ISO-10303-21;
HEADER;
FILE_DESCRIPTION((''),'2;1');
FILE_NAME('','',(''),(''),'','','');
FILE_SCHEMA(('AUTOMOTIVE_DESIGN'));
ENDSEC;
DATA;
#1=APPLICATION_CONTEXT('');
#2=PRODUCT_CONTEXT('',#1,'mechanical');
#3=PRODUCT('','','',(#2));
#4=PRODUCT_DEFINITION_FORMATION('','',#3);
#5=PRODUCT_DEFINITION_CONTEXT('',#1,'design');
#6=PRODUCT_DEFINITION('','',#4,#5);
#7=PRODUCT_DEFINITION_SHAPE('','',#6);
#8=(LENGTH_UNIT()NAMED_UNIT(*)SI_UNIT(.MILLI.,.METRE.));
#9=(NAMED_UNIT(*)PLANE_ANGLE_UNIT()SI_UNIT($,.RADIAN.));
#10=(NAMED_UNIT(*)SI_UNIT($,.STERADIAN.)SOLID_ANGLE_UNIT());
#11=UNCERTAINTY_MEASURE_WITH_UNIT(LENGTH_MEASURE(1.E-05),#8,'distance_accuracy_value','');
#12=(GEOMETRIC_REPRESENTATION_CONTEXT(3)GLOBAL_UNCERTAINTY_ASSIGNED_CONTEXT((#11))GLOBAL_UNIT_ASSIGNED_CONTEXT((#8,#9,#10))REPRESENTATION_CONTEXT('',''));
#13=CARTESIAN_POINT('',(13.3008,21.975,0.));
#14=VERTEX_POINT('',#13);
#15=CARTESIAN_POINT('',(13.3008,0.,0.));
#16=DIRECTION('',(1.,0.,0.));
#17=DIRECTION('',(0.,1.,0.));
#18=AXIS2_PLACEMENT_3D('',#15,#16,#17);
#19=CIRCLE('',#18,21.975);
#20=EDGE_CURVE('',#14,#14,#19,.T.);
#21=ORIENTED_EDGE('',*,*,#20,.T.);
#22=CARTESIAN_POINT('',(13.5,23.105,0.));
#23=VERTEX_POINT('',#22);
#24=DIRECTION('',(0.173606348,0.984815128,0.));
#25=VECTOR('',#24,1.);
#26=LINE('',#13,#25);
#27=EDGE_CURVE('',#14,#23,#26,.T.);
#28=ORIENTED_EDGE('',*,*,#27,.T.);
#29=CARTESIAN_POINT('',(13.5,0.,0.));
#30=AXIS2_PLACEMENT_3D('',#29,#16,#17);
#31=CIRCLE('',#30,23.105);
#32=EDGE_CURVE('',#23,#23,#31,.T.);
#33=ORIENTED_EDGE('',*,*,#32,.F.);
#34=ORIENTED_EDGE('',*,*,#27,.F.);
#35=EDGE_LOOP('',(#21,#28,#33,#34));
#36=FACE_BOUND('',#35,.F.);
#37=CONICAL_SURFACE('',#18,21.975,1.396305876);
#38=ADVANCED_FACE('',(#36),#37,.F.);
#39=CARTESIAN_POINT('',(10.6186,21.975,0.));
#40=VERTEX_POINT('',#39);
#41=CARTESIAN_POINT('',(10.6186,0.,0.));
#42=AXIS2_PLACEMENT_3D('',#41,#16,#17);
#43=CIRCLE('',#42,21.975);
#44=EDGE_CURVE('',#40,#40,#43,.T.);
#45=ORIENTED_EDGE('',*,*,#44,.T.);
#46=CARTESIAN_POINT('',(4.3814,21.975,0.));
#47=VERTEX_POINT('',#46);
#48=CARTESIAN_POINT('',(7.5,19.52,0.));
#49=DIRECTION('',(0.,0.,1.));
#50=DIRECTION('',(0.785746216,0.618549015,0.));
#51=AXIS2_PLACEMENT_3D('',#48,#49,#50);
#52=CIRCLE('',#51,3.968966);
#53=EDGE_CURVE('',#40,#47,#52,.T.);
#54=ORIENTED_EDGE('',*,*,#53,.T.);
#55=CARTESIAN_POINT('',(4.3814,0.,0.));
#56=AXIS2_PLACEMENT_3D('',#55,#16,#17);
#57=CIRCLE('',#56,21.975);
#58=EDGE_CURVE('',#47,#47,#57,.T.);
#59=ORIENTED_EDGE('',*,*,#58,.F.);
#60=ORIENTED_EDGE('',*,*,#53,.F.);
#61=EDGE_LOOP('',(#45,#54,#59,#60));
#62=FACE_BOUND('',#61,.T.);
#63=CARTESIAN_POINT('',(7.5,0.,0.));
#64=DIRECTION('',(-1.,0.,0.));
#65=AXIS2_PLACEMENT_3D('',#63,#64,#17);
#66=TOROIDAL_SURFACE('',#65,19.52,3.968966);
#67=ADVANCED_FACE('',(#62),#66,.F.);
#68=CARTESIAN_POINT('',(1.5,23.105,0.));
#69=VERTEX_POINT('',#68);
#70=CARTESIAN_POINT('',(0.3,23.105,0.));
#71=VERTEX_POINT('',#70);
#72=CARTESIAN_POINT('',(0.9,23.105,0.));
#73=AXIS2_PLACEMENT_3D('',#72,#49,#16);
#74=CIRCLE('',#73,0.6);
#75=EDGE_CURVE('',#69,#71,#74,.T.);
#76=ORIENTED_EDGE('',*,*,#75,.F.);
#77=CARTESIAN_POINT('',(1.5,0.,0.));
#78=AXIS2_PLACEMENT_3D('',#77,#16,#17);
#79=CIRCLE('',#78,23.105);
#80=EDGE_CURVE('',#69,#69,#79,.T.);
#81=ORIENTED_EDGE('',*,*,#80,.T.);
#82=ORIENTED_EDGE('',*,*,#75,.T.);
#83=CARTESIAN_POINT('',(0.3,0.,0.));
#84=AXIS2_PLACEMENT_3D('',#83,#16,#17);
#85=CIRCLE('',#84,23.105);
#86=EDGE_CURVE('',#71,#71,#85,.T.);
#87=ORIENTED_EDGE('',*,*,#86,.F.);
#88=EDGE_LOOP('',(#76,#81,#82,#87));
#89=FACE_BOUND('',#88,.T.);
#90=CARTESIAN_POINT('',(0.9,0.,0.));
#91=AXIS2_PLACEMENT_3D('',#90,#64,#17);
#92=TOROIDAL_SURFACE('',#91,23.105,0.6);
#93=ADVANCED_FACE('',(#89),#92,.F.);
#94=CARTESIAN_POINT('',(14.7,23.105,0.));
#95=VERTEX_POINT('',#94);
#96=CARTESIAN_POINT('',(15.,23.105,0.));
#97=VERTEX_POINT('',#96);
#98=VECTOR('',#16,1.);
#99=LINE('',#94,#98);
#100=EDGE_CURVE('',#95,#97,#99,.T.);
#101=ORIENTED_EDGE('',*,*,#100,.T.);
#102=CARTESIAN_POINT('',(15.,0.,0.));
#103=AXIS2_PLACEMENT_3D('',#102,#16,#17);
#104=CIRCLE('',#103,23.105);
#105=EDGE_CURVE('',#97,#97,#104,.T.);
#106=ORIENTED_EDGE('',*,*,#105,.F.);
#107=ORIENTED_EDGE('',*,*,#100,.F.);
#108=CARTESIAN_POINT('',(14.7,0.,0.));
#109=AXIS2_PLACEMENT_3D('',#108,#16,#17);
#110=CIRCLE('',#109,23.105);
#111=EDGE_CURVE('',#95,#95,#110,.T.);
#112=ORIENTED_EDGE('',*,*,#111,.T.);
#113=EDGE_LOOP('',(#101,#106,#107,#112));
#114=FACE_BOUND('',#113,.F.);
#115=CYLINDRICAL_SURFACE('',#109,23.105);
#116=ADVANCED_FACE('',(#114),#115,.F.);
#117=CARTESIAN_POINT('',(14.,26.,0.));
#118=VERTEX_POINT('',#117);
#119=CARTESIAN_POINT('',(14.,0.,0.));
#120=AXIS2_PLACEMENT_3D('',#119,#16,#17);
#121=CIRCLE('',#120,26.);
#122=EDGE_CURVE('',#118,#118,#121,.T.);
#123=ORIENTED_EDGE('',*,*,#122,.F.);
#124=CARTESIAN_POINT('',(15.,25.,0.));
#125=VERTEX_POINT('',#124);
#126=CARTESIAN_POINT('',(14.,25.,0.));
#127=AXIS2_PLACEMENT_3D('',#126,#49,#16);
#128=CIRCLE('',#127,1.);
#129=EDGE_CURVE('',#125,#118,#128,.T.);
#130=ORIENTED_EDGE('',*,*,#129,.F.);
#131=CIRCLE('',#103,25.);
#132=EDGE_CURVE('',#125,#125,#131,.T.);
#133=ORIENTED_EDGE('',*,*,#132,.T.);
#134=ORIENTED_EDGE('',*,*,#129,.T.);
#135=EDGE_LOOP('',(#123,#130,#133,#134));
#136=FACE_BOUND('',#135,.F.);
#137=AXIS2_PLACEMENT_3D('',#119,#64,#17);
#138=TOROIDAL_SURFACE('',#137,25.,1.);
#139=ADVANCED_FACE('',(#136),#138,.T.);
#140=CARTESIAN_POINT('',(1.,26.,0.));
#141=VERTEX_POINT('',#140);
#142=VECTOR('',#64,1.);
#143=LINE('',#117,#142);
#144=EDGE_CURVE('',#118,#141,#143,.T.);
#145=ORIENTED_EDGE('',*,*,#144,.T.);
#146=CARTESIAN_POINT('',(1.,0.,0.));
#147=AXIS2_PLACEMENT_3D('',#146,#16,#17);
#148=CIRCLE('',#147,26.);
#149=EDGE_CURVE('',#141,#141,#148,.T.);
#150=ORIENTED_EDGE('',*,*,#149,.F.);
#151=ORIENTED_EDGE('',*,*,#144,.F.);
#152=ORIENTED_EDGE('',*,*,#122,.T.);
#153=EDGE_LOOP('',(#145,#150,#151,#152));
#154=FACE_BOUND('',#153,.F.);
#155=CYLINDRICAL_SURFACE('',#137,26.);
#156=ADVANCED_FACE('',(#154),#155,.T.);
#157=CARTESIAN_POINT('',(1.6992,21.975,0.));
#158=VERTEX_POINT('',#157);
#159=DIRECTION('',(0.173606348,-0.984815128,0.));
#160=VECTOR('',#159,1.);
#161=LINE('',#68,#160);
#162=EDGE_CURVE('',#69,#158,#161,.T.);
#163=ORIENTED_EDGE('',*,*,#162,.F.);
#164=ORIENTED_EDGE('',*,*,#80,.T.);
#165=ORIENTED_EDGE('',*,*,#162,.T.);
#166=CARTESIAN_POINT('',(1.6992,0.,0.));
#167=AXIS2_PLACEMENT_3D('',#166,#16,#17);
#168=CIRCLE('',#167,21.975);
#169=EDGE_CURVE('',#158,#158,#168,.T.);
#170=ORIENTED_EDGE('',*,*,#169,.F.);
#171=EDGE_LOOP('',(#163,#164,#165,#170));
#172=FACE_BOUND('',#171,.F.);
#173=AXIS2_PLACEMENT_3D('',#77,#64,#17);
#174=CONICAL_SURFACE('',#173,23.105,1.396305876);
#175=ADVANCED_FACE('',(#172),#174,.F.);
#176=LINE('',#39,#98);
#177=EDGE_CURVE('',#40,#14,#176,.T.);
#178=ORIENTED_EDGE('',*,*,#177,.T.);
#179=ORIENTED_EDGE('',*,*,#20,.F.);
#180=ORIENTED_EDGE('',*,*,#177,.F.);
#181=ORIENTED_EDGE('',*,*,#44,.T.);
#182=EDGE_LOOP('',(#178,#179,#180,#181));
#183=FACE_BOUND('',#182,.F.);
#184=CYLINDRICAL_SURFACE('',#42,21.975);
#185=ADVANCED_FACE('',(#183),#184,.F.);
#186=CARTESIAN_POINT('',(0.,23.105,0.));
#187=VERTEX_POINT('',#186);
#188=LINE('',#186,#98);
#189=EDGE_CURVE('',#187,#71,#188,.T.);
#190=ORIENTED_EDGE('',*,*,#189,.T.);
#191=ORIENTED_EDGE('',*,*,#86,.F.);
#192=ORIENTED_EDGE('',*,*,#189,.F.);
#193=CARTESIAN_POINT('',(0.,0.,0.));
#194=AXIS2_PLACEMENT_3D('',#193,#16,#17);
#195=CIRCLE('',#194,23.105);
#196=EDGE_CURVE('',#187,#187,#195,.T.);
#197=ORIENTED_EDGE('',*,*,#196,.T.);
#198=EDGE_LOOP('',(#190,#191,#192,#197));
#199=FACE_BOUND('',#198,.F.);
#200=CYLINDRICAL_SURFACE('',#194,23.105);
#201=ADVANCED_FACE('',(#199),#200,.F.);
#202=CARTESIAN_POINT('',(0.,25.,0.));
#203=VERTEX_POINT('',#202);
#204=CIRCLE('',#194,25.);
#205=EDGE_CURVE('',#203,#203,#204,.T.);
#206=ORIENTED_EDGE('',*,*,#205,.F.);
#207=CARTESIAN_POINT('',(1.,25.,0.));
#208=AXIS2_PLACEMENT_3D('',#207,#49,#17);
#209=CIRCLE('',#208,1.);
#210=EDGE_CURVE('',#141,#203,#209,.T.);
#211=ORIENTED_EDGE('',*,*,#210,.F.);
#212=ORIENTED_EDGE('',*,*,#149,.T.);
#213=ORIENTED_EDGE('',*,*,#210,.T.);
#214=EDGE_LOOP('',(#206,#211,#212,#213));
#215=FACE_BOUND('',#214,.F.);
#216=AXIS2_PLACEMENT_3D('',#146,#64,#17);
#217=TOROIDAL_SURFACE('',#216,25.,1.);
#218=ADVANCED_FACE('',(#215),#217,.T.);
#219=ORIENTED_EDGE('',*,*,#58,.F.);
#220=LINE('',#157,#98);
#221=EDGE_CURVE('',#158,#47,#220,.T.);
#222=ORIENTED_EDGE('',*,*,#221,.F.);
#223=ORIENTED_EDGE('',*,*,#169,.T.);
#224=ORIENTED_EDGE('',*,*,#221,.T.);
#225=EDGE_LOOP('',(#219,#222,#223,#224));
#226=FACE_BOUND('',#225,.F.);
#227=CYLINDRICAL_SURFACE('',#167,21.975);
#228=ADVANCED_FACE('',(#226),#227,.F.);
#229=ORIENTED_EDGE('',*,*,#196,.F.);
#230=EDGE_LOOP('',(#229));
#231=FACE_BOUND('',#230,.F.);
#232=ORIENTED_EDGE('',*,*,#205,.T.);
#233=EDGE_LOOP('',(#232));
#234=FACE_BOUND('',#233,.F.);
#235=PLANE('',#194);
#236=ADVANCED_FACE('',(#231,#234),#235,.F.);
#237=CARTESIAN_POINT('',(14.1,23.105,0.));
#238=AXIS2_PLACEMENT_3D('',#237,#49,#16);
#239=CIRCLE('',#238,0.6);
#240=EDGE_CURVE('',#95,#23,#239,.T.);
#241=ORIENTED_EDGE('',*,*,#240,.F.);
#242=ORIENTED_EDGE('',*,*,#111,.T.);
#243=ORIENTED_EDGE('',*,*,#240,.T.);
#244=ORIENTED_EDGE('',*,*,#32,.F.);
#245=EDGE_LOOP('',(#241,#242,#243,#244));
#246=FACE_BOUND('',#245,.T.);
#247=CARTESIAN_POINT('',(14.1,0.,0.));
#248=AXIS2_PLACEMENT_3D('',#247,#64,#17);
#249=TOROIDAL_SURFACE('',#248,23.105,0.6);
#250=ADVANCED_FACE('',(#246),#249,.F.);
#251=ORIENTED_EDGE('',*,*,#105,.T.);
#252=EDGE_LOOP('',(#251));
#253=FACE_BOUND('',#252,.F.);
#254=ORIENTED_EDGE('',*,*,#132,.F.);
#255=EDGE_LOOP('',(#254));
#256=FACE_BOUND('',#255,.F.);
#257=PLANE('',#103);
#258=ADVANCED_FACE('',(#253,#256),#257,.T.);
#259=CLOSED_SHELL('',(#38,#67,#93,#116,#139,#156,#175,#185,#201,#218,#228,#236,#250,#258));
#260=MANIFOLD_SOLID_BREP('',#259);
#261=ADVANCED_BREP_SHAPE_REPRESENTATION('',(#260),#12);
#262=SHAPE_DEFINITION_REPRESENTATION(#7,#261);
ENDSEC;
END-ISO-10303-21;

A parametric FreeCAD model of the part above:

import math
import FreeCAD as App
import Part
import Sketcher

V = App.Vector

doc = App.newDocument("Part")
body = doc.addObject("PartDesign::Body", "Body")

# Sketch on XY plane
sketch1 = body.newObject("Sketcher::SketchObject", "Sketch")
sketch1.AttachmentSupport = (doc.getObject("XY_Plane"), [""])
sketch1.MapMode = "FlatFace"
sketch1.addGeometry([
    Part.LineSegment(V(0, 25, 0), V(0, 23.11, 0)),  # 0
    Part.LineSegment(V(0, 23.11, 0), V(0.3, 23.11, 0)),  # 1
    Part.ArcOfCircle(Part.Circle(V(0.9, 23.11, 0), V(0, 0, 1), 0.6), math.radians(0), math.radians(180)),  # 2
    Part.LineSegment(V(1.5, 23.11, 0), V(1.7, 21.98, 0)),  # 3
    Part.LineSegment(V(1.7, 21.98, 0), V(4.38, 21.98, 0)),  # 4
    Part.ArcOfCircle(Part.Circle(V(7.5, 19.52, 0), V(0, 0, 1), 3.97), math.radians(38), math.radians(142)),  # 5
    Part.LineSegment(V(10.62, 21.98, 0), V(13.3, 21.98, 0)),  # 6
    Part.LineSegment(V(13.3, 21.98, 0), V(13.5, 23.11, 0)),  # 7
    Part.ArcOfCircle(Part.Circle(V(14.1, 23.11, 0), V(0, 0, 1), 0.6), math.radians(0), math.radians(180)),  # 8
    Part.LineSegment(V(14.7, 23.11, 0), V(15, 23.11, 0)),  # 9
    Part.LineSegment(V(15, 23.11, 0), V(15, 25, 0)),  # 10
    Part.ArcOfCircle(Part.Circle(V(14, 25, 0), V(0, 0, 1), 1), math.radians(0), math.radians(90)),  # 11
    Part.LineSegment(V(14, 26, 0), V(1, 26, 0)),  # 12
    Part.ArcOfCircle(Part.Circle(V(1, 25, 0), V(0, 0, 1), 1), math.radians(90), math.radians(180)),  # 13
], False)
sketch1.addConstraint([
    Sketcher.Constraint("Coincident", 0, 2, 1, 1),
    Sketcher.Constraint("Coincident", 1, 2, 2, 2),
    Sketcher.Constraint("Coincident", 2, 1, 3, 1),
    Sketcher.Constraint("Coincident", 3, 2, 4, 1),
    Sketcher.Constraint("Coincident", 4, 2, 5, 2),
    Sketcher.Constraint("Coincident", 5, 1, 6, 1),
    Sketcher.Constraint("Coincident", 6, 2, 7, 1),
    Sketcher.Constraint("Coincident", 7, 2, 8, 2),
    Sketcher.Constraint("Coincident", 8, 1, 9, 1),
    Sketcher.Constraint("Coincident", 9, 2, 10, 1),
    Sketcher.Constraint("Tangent", 10, 2, 11, 1),
    Sketcher.Constraint("Tangent", 11, 2, 12, 1),
    Sketcher.Constraint("Tangent", 12, 2, 13, 1),
    Sketcher.Constraint("Tangent", 13, 2, 0, 1),
    Sketcher.Constraint("Vertical", 0),
    Sketcher.Constraint("Horizontal", 1),
    Sketcher.Constraint("Horizontal", 4),
    Sketcher.Constraint("Horizontal", 6),
    Sketcher.Constraint("Horizontal", 9),
    Sketcher.Constraint("Vertical", 10),
    Sketcher.Constraint("Horizontal", 12),
    Sketcher.Constraint("Equal", 2, 8),
    Sketcher.Constraint("Equal", 11, 13),
    Sketcher.Constraint("PointOnObject", 0, 2, -2),
    Sketcher.Constraint("Horizontal", 2, 3, 8, 3),
    Sketcher.Constraint("Horizontal", 8, 3, 0, 2),
    Sketcher.Constraint("Horizontal", 1, 2, 2, 1),
    Sketcher.Constraint("Horizontal", 4, 2, 5, 1),
    Sketcher.Constraint("Horizontal", 2, 1, 7, 2),
    Sketcher.Constraint("Horizontal", 7, 2, 8, 1),
    Sketcher.Constraint("Equal", 4, 6),
    Sketcher.Constraint("Equal", 1, 9),
    Sketcher.Constraint("Equal", 3, 7),
    Sketcher.Constraint("Radius", 11, 1.0),
    Sketcher.Constraint("Radius", 2, 0.6),
    Sketcher.Constraint("DistanceX", 12, 2, 12, 1, 13.0),
    Sketcher.Constraint("DistanceX", 1, 1, 1, 2, 0.3),
    Sketcher.Constraint("DistanceY", -1, 1, 11, 3, 25.0),
    Sketcher.Constraint("Radius", 5, 3.969),
    Sketcher.Constraint("DistanceY", 0, 2, 0, 1, 1.895),
    Sketcher.Constraint("DistanceY", -1, 1, 5, 3, 19.52),
    Sketcher.Constraint("DistanceY", 3, 2, 2, 1, 1.13),
    Sketcher.Constraint("DistanceX", 4, 1, 4, 2, 2.6822),
])
revolution = body.newObject("PartDesign::Revolution", "Revolution")
revolution.Profile = sketch1
revolution.ReferenceAxis = (sketch1, ["H_Axis"])
revolution.Angle = 360

doc.recompute()
